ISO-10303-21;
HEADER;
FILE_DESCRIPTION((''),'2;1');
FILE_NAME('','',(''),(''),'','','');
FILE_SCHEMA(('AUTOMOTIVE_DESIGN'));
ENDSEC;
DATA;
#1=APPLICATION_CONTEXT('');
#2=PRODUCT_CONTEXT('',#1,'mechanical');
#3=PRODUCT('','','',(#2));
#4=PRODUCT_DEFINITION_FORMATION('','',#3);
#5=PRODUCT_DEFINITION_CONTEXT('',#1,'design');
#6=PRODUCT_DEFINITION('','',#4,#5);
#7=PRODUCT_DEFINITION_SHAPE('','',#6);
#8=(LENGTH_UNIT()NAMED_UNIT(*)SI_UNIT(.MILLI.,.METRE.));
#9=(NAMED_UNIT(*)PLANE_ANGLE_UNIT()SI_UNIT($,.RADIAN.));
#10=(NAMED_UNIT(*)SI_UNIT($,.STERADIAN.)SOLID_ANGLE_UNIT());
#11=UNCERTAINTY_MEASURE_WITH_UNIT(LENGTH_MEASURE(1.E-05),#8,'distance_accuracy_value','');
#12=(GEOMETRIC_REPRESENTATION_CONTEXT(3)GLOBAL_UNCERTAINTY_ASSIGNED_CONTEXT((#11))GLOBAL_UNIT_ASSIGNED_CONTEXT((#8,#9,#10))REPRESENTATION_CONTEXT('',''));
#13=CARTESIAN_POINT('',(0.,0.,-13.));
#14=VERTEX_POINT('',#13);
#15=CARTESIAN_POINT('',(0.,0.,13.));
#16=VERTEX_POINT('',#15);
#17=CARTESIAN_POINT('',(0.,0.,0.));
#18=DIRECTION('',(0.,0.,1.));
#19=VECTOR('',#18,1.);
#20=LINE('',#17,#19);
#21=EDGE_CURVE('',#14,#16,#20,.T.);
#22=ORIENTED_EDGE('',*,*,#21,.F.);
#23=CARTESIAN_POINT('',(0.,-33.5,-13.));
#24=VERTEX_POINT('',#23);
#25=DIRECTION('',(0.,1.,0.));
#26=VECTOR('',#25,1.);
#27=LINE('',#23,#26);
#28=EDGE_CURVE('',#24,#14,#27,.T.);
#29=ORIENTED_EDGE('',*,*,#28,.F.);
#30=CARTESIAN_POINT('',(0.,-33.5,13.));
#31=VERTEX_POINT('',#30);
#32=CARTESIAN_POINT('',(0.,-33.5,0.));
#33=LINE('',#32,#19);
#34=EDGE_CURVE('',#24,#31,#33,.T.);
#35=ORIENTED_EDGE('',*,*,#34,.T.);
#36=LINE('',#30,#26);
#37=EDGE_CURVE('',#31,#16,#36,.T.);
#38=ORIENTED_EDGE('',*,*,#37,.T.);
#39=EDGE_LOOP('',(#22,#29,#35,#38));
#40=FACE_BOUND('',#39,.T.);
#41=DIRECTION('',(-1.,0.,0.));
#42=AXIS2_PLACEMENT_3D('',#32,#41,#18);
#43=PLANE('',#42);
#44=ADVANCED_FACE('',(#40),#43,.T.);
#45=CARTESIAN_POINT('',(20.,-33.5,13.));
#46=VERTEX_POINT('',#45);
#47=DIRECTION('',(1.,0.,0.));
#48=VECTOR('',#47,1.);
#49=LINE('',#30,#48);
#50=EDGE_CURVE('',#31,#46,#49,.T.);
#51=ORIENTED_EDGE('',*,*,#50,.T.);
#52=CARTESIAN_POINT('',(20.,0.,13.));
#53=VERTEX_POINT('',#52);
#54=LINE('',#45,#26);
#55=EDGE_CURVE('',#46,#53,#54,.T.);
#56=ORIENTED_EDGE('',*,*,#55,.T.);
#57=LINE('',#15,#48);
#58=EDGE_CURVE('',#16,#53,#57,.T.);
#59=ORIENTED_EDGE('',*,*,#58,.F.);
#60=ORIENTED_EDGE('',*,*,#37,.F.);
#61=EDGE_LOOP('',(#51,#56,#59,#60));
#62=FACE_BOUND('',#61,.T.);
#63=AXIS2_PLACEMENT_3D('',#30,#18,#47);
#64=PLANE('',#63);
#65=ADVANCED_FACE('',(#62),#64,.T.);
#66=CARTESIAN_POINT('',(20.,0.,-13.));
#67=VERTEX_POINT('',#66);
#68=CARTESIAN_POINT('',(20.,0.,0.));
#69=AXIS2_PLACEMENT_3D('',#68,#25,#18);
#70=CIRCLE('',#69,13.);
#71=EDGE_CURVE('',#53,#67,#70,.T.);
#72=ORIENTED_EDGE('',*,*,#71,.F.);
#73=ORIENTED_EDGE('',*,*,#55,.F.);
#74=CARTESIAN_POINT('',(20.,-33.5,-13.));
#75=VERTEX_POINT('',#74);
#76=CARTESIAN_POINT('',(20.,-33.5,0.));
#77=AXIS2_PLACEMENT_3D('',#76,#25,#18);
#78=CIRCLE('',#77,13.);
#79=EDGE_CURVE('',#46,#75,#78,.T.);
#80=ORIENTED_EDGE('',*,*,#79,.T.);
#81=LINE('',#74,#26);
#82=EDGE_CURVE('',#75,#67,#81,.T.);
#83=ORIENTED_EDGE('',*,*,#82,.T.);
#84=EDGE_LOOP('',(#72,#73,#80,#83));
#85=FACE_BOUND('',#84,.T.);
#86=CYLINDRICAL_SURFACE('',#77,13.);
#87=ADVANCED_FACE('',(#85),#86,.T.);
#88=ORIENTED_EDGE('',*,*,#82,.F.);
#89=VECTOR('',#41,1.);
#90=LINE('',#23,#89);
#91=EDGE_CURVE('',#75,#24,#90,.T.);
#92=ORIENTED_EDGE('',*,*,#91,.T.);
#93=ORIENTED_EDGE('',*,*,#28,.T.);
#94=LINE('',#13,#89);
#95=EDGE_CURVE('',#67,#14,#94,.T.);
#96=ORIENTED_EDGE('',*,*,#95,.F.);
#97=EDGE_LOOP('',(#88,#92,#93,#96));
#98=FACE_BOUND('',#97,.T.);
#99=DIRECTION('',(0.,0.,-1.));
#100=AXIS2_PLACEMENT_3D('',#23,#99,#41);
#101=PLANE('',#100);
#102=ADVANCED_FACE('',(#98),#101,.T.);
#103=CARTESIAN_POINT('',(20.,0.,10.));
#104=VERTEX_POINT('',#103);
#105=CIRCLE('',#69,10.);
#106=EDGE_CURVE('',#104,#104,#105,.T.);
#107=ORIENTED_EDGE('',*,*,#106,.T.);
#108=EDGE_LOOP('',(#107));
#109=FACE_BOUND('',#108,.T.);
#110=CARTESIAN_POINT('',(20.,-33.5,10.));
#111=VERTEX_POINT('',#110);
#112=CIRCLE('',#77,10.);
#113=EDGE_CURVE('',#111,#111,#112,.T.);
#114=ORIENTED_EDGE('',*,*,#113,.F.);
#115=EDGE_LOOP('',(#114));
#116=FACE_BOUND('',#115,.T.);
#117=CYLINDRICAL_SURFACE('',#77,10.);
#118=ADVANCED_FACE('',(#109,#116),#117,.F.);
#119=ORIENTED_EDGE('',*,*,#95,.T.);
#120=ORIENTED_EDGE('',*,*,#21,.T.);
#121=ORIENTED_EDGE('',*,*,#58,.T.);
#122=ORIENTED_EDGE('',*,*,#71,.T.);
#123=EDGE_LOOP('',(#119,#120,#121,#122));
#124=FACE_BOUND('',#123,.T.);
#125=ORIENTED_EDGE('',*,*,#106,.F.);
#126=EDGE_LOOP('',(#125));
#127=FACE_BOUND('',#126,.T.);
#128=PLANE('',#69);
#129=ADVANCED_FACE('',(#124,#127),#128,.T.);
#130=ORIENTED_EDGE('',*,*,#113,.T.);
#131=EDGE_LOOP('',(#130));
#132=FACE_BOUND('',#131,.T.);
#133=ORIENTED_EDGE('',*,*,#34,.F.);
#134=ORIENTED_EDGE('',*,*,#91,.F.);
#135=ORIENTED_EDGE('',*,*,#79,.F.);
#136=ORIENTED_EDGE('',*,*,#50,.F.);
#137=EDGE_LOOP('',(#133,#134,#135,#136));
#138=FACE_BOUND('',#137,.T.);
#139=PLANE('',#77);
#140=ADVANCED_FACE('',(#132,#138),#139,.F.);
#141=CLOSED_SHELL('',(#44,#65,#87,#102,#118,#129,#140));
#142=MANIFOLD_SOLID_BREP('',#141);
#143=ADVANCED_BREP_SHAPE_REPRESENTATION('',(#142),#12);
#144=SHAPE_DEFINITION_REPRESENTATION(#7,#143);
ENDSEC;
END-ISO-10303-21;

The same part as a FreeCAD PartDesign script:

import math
import FreeCAD as App
import Part
import Sketcher
from FreeCAD import Vector
Q = App.Units.Quantity

doc = App.newDocument("Part")
body = doc.addObject("PartDesign::Body", "Body")

sketch1 = doc.addObject("Sketcher::SketchObject", "Sketch")
body.addObject(sketch1)
sketch1.AttachmentSupport = (doc.XZ_Plane, [""])
sketch1.MapMode = "FlatFace"
sketch1.addGeometry([
    Part.LineSegment(Vector(20, -13, 0), Vector(0, -13, 0)),
    Part.LineSegment(Vector(0, -13, 0), Vector(0, 13, 0)),
    Part.LineSegment(Vector(0, 13, 0), Vector(20, 13, 0)),
    Part.ArcOfCircle(Part.Circle(Vector(20, 0, 0), Vector(0, 0, 1), 13), math.radians(-90), math.radians(90)),
], False)
sketch1.addConstraint([
    Sketcher.Constraint("Coincident", 0, 2, 1, 1),
    Sketcher.Constraint("Coincident", 1, 2, 2, 1),
    Sketcher.Constraint("Tangent", 2, 2, 3, 2),
    Sketcher.Constraint("Tangent", 3, 1, 0, 1),
    Sketcher.Constraint("Horizontal", 0),
    Sketcher.Constraint("Vertical", 1),
    Sketcher.Constraint("Horizontal", 2),
    Sketcher.Constraint("Symmetric", 0, 2, 1, 2, -1, 1),
    Sketcher.Constraint("Radius", 3, Q("13 mm")),
    Sketcher.Constraint("DistanceX", 0, 2, 0, 1, Q("20 mm")),
])
pad1 = doc.addObject("PartDesign::Pad", "Pad")
body.addObject(pad1)
pad1.Profile = sketch1
pad1.Length = 33.5

sketch2 = doc.addObject("Sketcher::SketchObject", "Sketch001")
body.addObject(sketch2)
sketch2.AttachmentSupport = (doc.XZ_Plane, [""])
sketch2.MapMode = "FlatFace"
sketch2.addGeometry(Part.Circle(Vector(20, 0, 0), Vector(0, 0, 1), 10), False)
sketch2.addConstraint([
    Sketcher.Constraint("PointOnObject", 0, 3, -1),
    Sketcher.Constraint("Diameter", 0, Q("20 mm")),
    Sketcher.Constraint("DistanceX", -1, 1, 0, 3, Q("20 mm")),
])
pocket1 = doc.addObject("PartDesign::Pocket", "Pocket")
body.addObject(pocket1)
pocket1.Profile = sketch2
pocket1.Type = "ThroughAll"
pocket1.Reversed = True

doc.recompute()
